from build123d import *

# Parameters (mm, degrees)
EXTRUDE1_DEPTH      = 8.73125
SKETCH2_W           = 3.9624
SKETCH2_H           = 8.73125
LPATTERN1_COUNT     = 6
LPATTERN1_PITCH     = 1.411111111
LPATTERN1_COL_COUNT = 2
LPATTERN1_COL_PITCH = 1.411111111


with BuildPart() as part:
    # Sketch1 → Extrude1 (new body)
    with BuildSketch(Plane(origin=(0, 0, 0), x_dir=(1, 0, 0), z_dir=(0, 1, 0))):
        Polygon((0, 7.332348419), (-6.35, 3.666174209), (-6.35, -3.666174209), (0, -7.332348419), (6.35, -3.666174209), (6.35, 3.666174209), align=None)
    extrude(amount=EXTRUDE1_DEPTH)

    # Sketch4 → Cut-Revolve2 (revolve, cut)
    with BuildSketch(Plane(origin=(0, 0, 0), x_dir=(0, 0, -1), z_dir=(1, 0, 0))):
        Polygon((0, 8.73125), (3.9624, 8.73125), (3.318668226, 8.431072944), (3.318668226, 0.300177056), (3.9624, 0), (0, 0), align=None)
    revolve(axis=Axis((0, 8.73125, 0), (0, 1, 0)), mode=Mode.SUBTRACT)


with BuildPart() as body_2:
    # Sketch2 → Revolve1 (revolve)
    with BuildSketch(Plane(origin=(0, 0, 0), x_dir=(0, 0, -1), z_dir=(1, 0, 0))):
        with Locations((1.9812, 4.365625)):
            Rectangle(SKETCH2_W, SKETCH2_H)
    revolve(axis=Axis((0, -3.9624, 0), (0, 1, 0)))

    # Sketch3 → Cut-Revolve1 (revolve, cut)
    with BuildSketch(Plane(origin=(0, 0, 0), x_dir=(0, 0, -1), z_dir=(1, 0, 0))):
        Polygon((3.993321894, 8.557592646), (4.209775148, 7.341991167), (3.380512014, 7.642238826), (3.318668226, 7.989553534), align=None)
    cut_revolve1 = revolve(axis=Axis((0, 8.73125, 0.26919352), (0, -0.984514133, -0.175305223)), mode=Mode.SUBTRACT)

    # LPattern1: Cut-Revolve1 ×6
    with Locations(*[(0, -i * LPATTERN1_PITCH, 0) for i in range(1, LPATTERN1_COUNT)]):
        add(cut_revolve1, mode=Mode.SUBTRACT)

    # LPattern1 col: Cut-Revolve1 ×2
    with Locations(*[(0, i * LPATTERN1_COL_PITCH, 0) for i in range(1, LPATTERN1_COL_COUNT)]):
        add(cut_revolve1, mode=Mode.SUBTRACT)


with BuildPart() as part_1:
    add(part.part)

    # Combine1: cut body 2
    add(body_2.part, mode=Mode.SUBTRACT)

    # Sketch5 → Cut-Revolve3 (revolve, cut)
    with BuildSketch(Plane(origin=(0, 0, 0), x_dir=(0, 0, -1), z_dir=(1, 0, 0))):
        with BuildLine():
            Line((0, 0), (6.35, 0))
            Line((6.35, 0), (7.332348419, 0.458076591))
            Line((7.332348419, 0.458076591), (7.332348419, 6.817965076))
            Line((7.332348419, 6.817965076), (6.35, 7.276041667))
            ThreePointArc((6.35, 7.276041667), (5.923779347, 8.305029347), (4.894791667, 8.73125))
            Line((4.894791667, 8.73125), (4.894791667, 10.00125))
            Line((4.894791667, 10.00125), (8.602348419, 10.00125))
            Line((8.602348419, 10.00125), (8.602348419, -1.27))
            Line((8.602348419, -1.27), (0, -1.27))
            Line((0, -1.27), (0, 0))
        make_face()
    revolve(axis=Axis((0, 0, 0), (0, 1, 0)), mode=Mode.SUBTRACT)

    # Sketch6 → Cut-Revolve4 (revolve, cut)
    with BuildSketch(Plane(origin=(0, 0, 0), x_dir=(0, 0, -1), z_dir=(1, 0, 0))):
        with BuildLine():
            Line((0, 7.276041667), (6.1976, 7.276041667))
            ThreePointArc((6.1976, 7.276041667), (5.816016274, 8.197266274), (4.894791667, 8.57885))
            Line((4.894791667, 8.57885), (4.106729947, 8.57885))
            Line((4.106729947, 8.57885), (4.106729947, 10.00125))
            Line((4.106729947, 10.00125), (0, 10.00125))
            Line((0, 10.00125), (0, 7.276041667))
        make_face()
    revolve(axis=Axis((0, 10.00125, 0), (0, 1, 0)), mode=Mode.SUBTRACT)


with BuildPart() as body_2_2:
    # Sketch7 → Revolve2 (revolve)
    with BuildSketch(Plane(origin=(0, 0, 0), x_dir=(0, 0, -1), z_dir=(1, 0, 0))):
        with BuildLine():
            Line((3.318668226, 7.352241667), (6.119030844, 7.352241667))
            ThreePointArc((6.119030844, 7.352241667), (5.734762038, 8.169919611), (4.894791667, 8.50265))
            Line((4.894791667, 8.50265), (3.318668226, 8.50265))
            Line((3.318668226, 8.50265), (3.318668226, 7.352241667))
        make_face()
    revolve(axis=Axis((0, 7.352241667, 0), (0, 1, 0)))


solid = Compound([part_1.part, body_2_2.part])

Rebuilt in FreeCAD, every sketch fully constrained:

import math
import FreeCAD as App
import Part
import Sketcher
Q = App.Units.Quantity

doc = App.newDocument("Part")
params = doc.addObject("Spreadsheet::Sheet", "Params")
for row, (alias, value) in enumerate([
    ("pad1_length", "0.34375 in"),
    ("sketch2_width", "0.34375 in"),
    ("sketch2_height", "0.156 in"),
    ("groove_angle", "360 deg"),
    ("sketch3_width", "0.34375 in"),
    ("sketch3_height", "0.156 in"),
    ("revolution_angle", "360 deg"),
    ("groove2_angle", "360 deg"),
    ("linearpattern_pitch", "1.411111 mm"),
    ("linearpattern2_pitch", "1.411111 mm"),
    ("sketch5_width", "0.05 in"),
    ("sketch5_height", "0.25 in"),
    ("groove3_angle", "360 deg"),
    ("sketch6_width", "0.056 in"),
    ("sketch6_height", "0.244 in"),
    ("groove4_angle", "360 deg"),
    ("revolution2_angle", "360 deg"),
], start=1):
    params.set(f"A{row}", alias)
    params.set(f"B{row}", "=" + value)
    params.setAlias(f"B{row}", alias)

body = doc.addObject("PartDesign::Body", "Body")

# Sketch on XZ plane
sketch1 = doc.addObject("Sketcher::SketchObject", "Sketch")
body.addObject(sketch1)
sketch1.AttachmentSupport = (doc.XZ_Plane, [""])
sketch1.MapMode = "FlatFace"
sketch1.addGeometry(Part.LineSegment(App.Vector(0, -7, 0), App.Vector(-6, -4, 0)), False)
sketch1.addGeometry(Part.LineSegment(App.Vector(-6, -4, 0), App.Vector(-6, 4, 0)), False)
sketch1.addGeometry(Part.LineSegment(App.Vector(-6, 4, 0), App.Vector(0, 7, 0)), False)
sketch1.addGeometry(Part.LineSegment(App.Vector(0, 7, 0), App.Vector(6, 4, 0)), False)
sketch1.addGeometry(Part.LineSegment(App.Vector(6, 4, 0), App.Vector(6, -4, 0)), False)
sketch1.addGeometry(Part.LineSegment(App.Vector(6, -4, 0), App.Vector(0, -7, 0)), False)
sketch1.addConstraint(Sketcher.Constraint("Coincident", 0, 2, 1, 1))
sketch1.addConstraint(Sketcher.Constraint("Coincident", 1, 2, 2, 1))
sketch1.addConstraint(Sketcher.Constraint("Coincident", 2, 2, 3, 1))
sketch1.addConstraint(Sketcher.Constraint("Coincident", 3, 2, 4, 1))
sketch1.addConstraint(Sketcher.Constraint("Coincident", 4, 2, 5, 1))
sketch1.addConstraint(Sketcher.Constraint("Coincident", 5, 2, 0, 1))
sketch1.addConstraint(Sketcher.Constraint("Vertical", 1))
sketch1.addConstraint(Sketcher.Constraint("Vertical", 4))
sketch1.addConstraint(Sketcher.Constraint("Symmetric", 0, 2, 3, 2, -1, 1))
sketch1.addConstraint(Sketcher.Constraint("Symmetric", 2, 2, 5, 2, -1, 1))
sketch1.addConstraint(Sketcher.Constraint("PointOnObject", 2, 2, -2))
sketch1.addConstraint(Sketcher.Constraint("Parallel", 2, 5))
sketch1.addConstraint(Sketcher.Constraint("Horizontal", 1, 2, 3, 2))
sketch1.addConstraint(Sketcher.Constraint("Angle", 0, Q("150 deg")))
sketch1.addConstraint(Sketcher.Constraint("DistanceX", 1, 2, 3, 2, Q("0.5 in")))
sketch1.addConstraint(Sketcher.Constraint("DistanceY", 1, 1, 1, 2, 7.332348))
pad1 = doc.addObject("PartDesign::Pad", "Pad")
body.addObject(pad1)
pad1.Profile = sketch1
pad1.setExpression("Length", "Params.pad1_length")
pad1.Reversed = True

# Sketch on YZ plane
sketch2 = doc.addObject("Sketcher::SketchObject", "Sketch001")
body.addObject(sketch2)
sketch2.AttachmentSupport = (doc.YZ_Plane, [""])
sketch2.MapMode = "FlatFace"
sketch2.addGeometry(Part.LineSegment(App.Vector(8.7, -4, 0), App.Vector(8.7, 0, 0)), False)
sketch2.addGeometry(Part.LineSegment(App.Vector(8.7, 0, 0), App.Vector(0, 0, 0)), False)
sketch2.addGeometry(Part.LineSegment(App.Vector(0, 0, 0), App.Vector(0, -4, 0)), False)
sketch2.addGeometry(Part.LineSegment(App.Vector(0, -4, 0), App.Vector(0.3, -3.3, 0)), False)
sketch2.addGeometry(Part.LineSegment(App.Vector(0.3, -3.3, 0), App.Vector(8.4, -3.3, 0)), False)
sketch2.addGeometry(Part.LineSegment(App.Vector(8.4, -3.3, 0), App.Vector(8.7, -4, 0)), False)
sketch2.addConstraint(Sketcher.Constraint("Coincident", 0, 2, 1, 1))
sketch2.addConstraint(Sketcher.Constraint("Coincident", 1, 2, 2, 1))
sketch2.addConstraint(Sketcher.Constraint("Coincident", 2, 2, 3, 1))
sketch2.addConstraint(Sketcher.Constraint("Coincident", 3, 2, 4, 1))
sketch2.addConstraint(Sketcher.Constraint("Coincident", 4, 2, 5, 1))
sketch2.addConstraint(Sketcher.Constraint("Coincident", 5, 2, 0, 1))
sketch2.addConstraint(Sketcher.Constraint("Vertical", 0))
sketch2.addConstraint(Sketcher.Constraint("Horizontal", 1))
sketch2.addConstraint(Sketcher.Constraint("Vertical", 2))
sketch2.addConstraint(Sketcher.Constraint("Horizontal", 4))
sketch2.addConstraint(Sketcher.Constraint("Coincident", 1, 2, -1, 1))
sketch2.addConstraint(Sketcher.Constraint("Horizontal", 2, 2, 5, 2))
sketch2.addConstraint(Sketcher.Constraint("Equal", 3, 5))
sketch2.addConstraint(Sketcher.Constraint("Angle", 3, Q("65 deg")))
sketch2.addConstraint(Sketcher.Constraint("DistanceX", 1, 2, 1, 1, Q("0.34375 in")))
sketch2.addConstraint(Sketcher.Constraint("DistanceY", 0, 1, 0, 2, Q("0.156 in")))
sketch2.addConstraint(Sketcher.Constraint("Distance", 3, 0.710279))
sketch2.setExpression("Constraints[14]", "Params.sketch2_width")
sketch2.setExpression("Constraints[15]", "Params.sketch2_height")
groove = doc.addObject("PartDesign::Groove", "Groove")
body.addObject(groove)
groove.Profile = sketch2
groove.ReferenceAxis = (sketch2, ["H_Axis"])
groove.setExpression("Angle", "Params.groove_angle")
body2 = doc.addObject("PartDesign::Body", "Body001")

# Sketch on YZ plane
sketch3 = doc.addObject("Sketcher::SketchObject", "Sketch002")
body2.addObject(sketch3)
sketch3.AttachmentSupport = (doc.getObject("YZ_Plane001"), [""])
sketch3.MapMode = "FlatFace"
sketch3.addGeometry(Part.LineSegment(App.Vector(8.7, 0, 0), App.Vector(0, 0, 0)), False)
sketch3.addGeometry(Part.LineSegment(App.Vector(0, 0, 0), App.Vector(0, -4, 0)), False)
sketch3.addGeometry(Part.LineSegment(App.Vector(0, -4, 0), App.Vector(8.7, -4, 0)), False)
sketch3.addGeometry(Part.LineSegment(App.Vector(8.7, -4, 0), App.Vector(8.7, 0, 0)), False)
sketch3.addConstraint(Sketcher.Constraint("Coincident", 0, 2, 1, 1))
sketch3.addConstraint(Sketcher.Constraint("Coincident", 1, 2, 2, 1))
sketch3.addConstraint(Sketcher.Constraint("Coincident", 2, 2, 3, 1))
sketch3.addConstraint(Sketcher.Constraint("Coincident", 3, 2, 0, 1))
sketch3.addConstraint(Sketcher.Constraint("Horizontal", 0))
sketch3.addConstraint(Sketcher.Constraint("Vertical", 1))
sketch3.addConstraint(Sketcher.Constraint("Horizontal", 2))
sketch3.addConstraint(Sketcher.Constraint("Vertical", 3))
sketch3.addConstraint(Sketcher.Constraint("Coincident", 0, 2, -1, 1))
sketch3.addConstraint(Sketcher.Constraint("DistanceX", 0, 2, 0, 1, Q("0.34375 in")))
sketch3.addConstraint(Sketcher.Constraint("DistanceY", 1, 2, 1, 1, Q("0.156 in")))
sketch3.setExpression("Constraints[9]", "Params.sketch3_width")
sketch3.setExpression("Constraints[10]", "Params.sketch3_height")
revolution = doc.addObject("PartDesign::Revolution", "Revolution")
body2.addObject(revolution)
revolution.Profile = sketch3
revolution.ReferenceAxis = (sketch3, ["H_Axis"])
revolution.setExpression("Angle", "Params.revolution_angle")

# Sketch on YZ plane
sketch4 = doc.addObject("Sketcher::SketchObject", "Sketch003")
body2.addObject(sketch4)
sketch4.AttachmentSupport = (doc.getObject("YZ_Plane001"), [""])
sketch4.MapMode = "FlatFace"
sketch4.addGeometry(Part.LineSegment(App.Vector(7.34, -4.21, 0), App.Vector(8.56, -3.99, 0)), False)
sketch4.addGeometry(Part.LineSegment(App.Vector(8.56, -3.99, 0), App.Vector(7.99, -3.32, 0)), False)
sketch4.addGeometry(Part.LineSegment(App.Vector(7.99, -3.32, 0), App.Vector(7.64, -3.38, 0)), False)
sketch4.addGeometry(Part.LineSegment(App.Vector(7.64, -3.38, 0), App.Vector(7.34, -4.21, 0)), False)
sketch4.addGeometry(Part.LineSegment(App.Vector(7.83, 0.11, 0), App.Vector(6.61, -0.11, 0)), True)  # axis
sketch4.addConstraint(Sketcher.Constraint("Coincident", 0, 2, 1, 1))
sketch4.addConstraint(Sketcher.Constraint("Coincident", 1, 2, 2, 1))
sketch4.addConstraint(Sketcher.Constraint("Coincident", 2, 2, 3, 1))
sketch4.addConstraint(Sketcher.Constraint("Coincident", 3, 2, 0, 1))
sketch4.addConstraint(Sketcher.Constraint("Parallel", 0, 2))
sketch4.addConstraint(Sketcher.Constraint("Parallel", 2, 4))
sketch4.addConstraint(Sketcher.Constraint("Equal", 1, 3))
sketch4.addConstraint(Sketcher.Constraint("Equal", 0, 4))
sketch4.addConstraint(Sketcher.Constraint("DistanceY", 3, 2, 4, 1, Q("0.1700001 in")))
sketch4.addConstraint(Sketcher.Constraint("DistanceX", 3, 2, 0, 2, 1.215601))
sketch4.addConstraint(Sketcher.Constraint("DistanceY", 0, 2, -1, 1, 3.993322))
sketch4.addConstraint(Sketcher.Constraint("DistanceY", 1, 2, -1, 1, 3.318668))
sketch4.addConstraint(Sketcher.Constraint("DistanceX", -1, 1, 2, 2, 7.642239))
sketch4.addConstraint(Sketcher.Constraint("DistanceX", -1, 1, 3, 2, 7.341991))
sketch4.addConstraint(Sketcher.Constraint("DistanceX", -1, 1, 4, 1, 7.82726))
sketch4.addConstraint(Sketcher.Constraint("DistanceX", 1, 2, 0, 2, 0.568039))
groove2 = doc.addObject("PartDesign::Groove", "Groove001")
body2.addObject(groove2)
groove2.Profile = sketch4
groove2.ReferenceAxis = (sketch4, ["Axis0"])
groove2.setExpression("Angle", "Params.groove2_angle")
doc.recompute()

linearpattern = doc.addObject("PartDesign::LinearPattern", "LinearPattern")
body2.addObject(linearpattern)
linearpattern.Originals = [groove2]
linearpattern.Direction = (doc.getObject("Y_Axis001"), [""])
linearpattern.Mode = "offset"
linearpattern.setExpression("Offset", "Params.linearpattern_pitch")
linearpattern.Occurrences = 6
linearpattern.Reversed = True
body2.Tip = linearpattern
doc.recompute()

linearpattern2 = doc.addObject("PartDesign::LinearPattern", "LinearPattern001")
body2.addObject(linearpattern2)
linearpattern2.Originals = [groove2]
linearpattern2.Direction = (doc.getObject("Y_Axis001"), [""])
linearpattern2.Mode = "offset"
linearpattern2.setExpression("Offset", "Params.linearpattern2_pitch")
linearpattern2.Occurrences = 2
body2.Tip = linearpattern2
doc.recompute()

boolean = doc.addObject("PartDesign::Boolean", "Boolean")
body.addObject(boolean)
boolean.Type = "Cut"
boolean.addObjects([body2])

# Sketch on YZ plane
sketch5 = doc.addObject("Sketcher::SketchObject", "Sketch004")
body.addObject(sketch5)
sketch5.AttachmentSupport = (doc.YZ_Plane, [""])
sketch5.MapMode = "FlatFace"
sketch5.addGeometry(Part.LineSegment(App.Vector(0, -6.3, 0), App.Vector(0, 0, 0)), False)
sketch5.addGeometry(Part.LineSegment(App.Vector(0, 0, 0), App.Vector(-1.3, 0, 0)), False)
sketch5.addGeometry(Part.LineSegment(App.Vector(-1.3, 0, 0), App.Vector(-1.3, -8.6, 0)), False)
sketch5.addGeometry(Part.LineSegment(App.Vector(-1.3, -8.6, 0), App.Vector(10, -8.6, 0)), False)
sketch5.addGeometry(Part.LineSegment(App.Vector(10, -8.6, 0), App.Vector(10, -4.9, 0)), False)
sketch5.addGeometry(Part.LineSegment(App.Vector(10, -4.9, 0), App.Vector(8.7, -4.9, 0)), False)
sketch5.addGeometry(Part.ArcOfCircle(Part.Circle(App.Vector(7.3, -4.9, 0), App.Vector(0, 0, 1), 1.5), math.radians(-90), math.radians(0)), False)
sketch5.addGeometry(Part.LineSegment(App.Vector(7.3, -6.3, 0), App.Vector(6.8, -7.3, 0)), False)
sketch5.addGeometry(Part.LineSegment(App.Vector(6.8, -7.3, 0), App.Vector(0.5, -7.3, 0)), False)
sketch5.addGeometry(Part.LineSegment(App.Vector(0.5, -7.3, 0), App.Vector(0, -6.3, 0)), False)
sketch5.addConstraint(Sketcher.Constraint("Coincident", 0, 2, 1, 1))
sketch5.addConstraint(Sketcher.Constraint("Coincident", 1, 2, 2, 1))
sketch5.addConstraint(Sketcher.Constraint("Coincident", 2, 2, 3, 1))
sketch5.addConstraint(Sketcher.Constraint("Coincident", 3, 2, 4, 1))
sketch5.addConstraint(Sketcher.Constraint("Coincident", 4, 2, 5, 1))
sketch5.addConstraint(Sketcher.Constraint("Coincident", 5, 2, 6, 2))
sketch5.addConstraint(Sketcher.Constraint("Coincident", 6, 1, 7, 1))
sketch5.addConstraint(Sketcher.Constraint("Coincident", 7, 2, 8, 1))
sketch5.addConstraint(Sketcher.Constraint("Coincident", 8, 2, 9, 1))
sketch5.addConstraint(Sketcher.Constraint("Coincident", 9, 2, 0, 1))
sketch5.addConstraint(Sketcher.Constraint("Vertical", 0))
sketch5.addConstraint(Sketcher.Constraint("Horizontal", 1))
sketch5.addConstraint(Sketcher.Constraint("Vertical", 2))
sketch5.addConstraint(Sketcher.Constraint("Horizontal", 3))
sketch5.addConstraint(Sketcher.Constraint("Vertical", 4))
sketch5.addConstraint(Sketcher.Constraint("Horizontal", 5))
sketch5.addConstraint(Sketcher.Constraint("Horizontal", 8))
sketch5.addConstraint(Sketcher.Constraint("Coincident", 0, 2, -1, 1))
sketch5.addConstraint(Sketcher.Constraint("Horizontal", 6, 3, 4, 2))
sketch5.addConstraint(Sketcher.Constraint("Horizontal", 6, 1, 9, 2))
sketch5.addConstraint(Sketcher.Constraint("Equal", 1, 5))
sketch5.addConstraint(Sketcher.Constraint("Equal", 7, 9))
sketch5.addConstraint(Sketcher.Constraint("Angle", 7, Q("-115 deg")))
sketch5.addConstraint(Sketcher.Constraint("DistanceX", 1, 2, 1, 1, Q("0.05 in")))
sketch5.addConstraint(Sketcher.Constraint("DistanceY", 0, 1, 0, 2, Q("0.25 in")))
sketch5.addConstraint(Sketcher.Constraint("DistanceY", 3, 2, 7, 2, Q("0.05 in")))
sketch5.addConstraint(Sketcher.Constraint("DistanceX", -1, 1, 5, 2, Q("0.34375 in")))
sketch5.addConstraint(Sketcher.Constraint("Radius", 6, 1.455208))
sketch5.addConstraint(Sketcher.Constraint("Distance", 7, 1.083902))
sketch5.addConstraint(Sketcher.Constraint("DistanceX", 8, 2, 8, 1, 6.359888))
sketch5.setExpression("Constraints[23]", "Params.sketch5_width")
sketch5.setExpression("Constraints[24]", "Params.sketch5_height")
groove3 = doc.addObject("PartDesign::Groove", "Groove002")
body.addObject(groove3)
groove3.Profile = sketch5
groove3.ReferenceAxis = (sketch5, ["H_Axis"])
groove3.setExpression("Angle", "Params.groove3_angle")

# Sketch on YZ plane
sketch6 = doc.addObject("Sketcher::SketchObject", "Sketch005")
body.addObject(sketch6)
sketch6.AttachmentSupport = (doc.YZ_Plane, [""])
sketch6.MapMode = "FlatFace"
sketch6.addGeometry(Part.LineSegment(App.Vector(7.3, 0, 0), App.Vector(7.3, -6.2, 0)), False)
sketch6.addGeometry(Part.ArcOfCircle(Part.Circle(App.Vector(7.3, -4.9, 0), App.Vector(0, 0, 1), 1.3), math.radians(-90), math.radians(0)), False)
sketch6.addGeometry(Part.LineSegment(App.Vector(8.6, -4.9, 0), App.Vector(8.6, -4.1, 0)), False)
sketch6.addGeometry(Part.LineSegment(App.Vector(8.6, -4.1, 0), App.Vector(10, -4.1, 0)), False)
sketch6.addGeometry(Part.LineSegment(App.Vector(10, -4.1, 0), App.Vector(10, 0, 0)), False)
sketch6.addGeometry(Part.LineSegment(App.Vector(10, 0, 0), App.Vector(7.3, 0, 0)), False)
sketch6.addConstraint(Sketcher.Constraint("Coincident", 0, 2, 1, 1))
sketch6.addConstraint(Sketcher.Constraint("Tangent", 1, 2, 2, 1))
sketch6.addConstraint(Sketcher.Constraint("Coincident", 2, 2, 3, 1))
sketch6.addConstraint(Sketcher.Constraint("Coincident", 3, 2, 4, 1))
sketch6.addConstraint(Sketcher.Constraint("Coincident", 4, 2, 5, 1))
sketch6.addConstraint(Sketcher.Constraint("Coincident", 5, 2, 0, 1))
sketch6.addConstraint(Sketcher.Constraint("Vertical", 0))
sketch6.addConstraint(Sketcher.Constraint("Vertical", 2))
sketch6.addConstraint(Sketcher.Constraint("Horizontal", 3))
sketch6.addConstraint(Sketcher.Constraint("Vertical", 4))
sketch6.addConstraint(Sketcher.Constraint("Horizontal", 5))
sketch6.addConstraint(Sketcher.Constraint("PointOnObject", 4, 2, -1))
sketch6.addConstraint(Sketcher.Constraint("Vertical", 1, 3, 0, 2))
sketch6.addConstraint(Sketcher.Constraint("DistanceX", 3, 1, 3, 2, Q("0.056 in")))
sketch6.addConstraint(Sketcher.Constraint("DistanceY", 0, 2, 0, 1, Q("0.244 in")))
sketch6.addConstraint(Sketcher.Constraint("Radius", 1, 1.302808))
sketch6.addConstraint(Sketcher.Constraint("DistanceY", 2, 1, 2, 2, 0.788062))
sketch6.addConstraint(Sketcher.Constraint("DistanceX", -1, 1, 1, 3, 7.276042))
sketch6.setExpression("Constraints[13]", "Params.sketch6_width")
sketch6.setExpression("Constraints[14]", "Params.sketch6_height")
groove4 = doc.addObject("PartDesign::Groove", "Groove003")
body.addObject(groove4)
groove4.Profile = sketch6
groove4.ReferenceAxis = (sketch6, ["H_Axis"])
groove4.setExpression("Angle", "Params.groove4_angle")
body3 = doc.addObject("PartDesign::Body", "Body002")

# Sketch on YZ plane
sketch7 = doc.addObject("Sketcher::SketchObject", "Sketch006")
body3.addObject(sketch7)
sketch7.AttachmentSupport = (doc.getObject("YZ_Plane002"), [""])
sketch7.MapMode = "FlatFace"
sketch7.addGeometry(Part.LineSegment(App.Vector(7.4, -3.3, 0), App.Vector(7.4, -6.1, 0)), False)
sketch7.addGeometry(Part.ArcOfCircle(Part.Circle(App.Vector(7.3, -4.9, 0), App.Vector(0, 0, 1), 1.2), math.radians(-86), math.radians(0)), False)
sketch7.addGeometry(Part.LineSegment(App.Vector(8.5, -4.9, 0), App.Vector(8.5, -3.3, 0)), False)
sketch7.addGeometry(Part.LineSegment(App.Vector(8.5, -3.3, 0), App.Vector(7.4, -3.3, 0)), False)
sketch7.addConstraint(Sketcher.Constraint("Coincident", 0, 2, 1, 1))
sketch7.addConstraint(Sketcher.Constraint("Tangent", 1, 2, 2, 1))
sketch7.addConstraint(Sketcher.Constraint("Coincident", 2, 2, 3, 1))
sketch7.addConstraint(Sketcher.Constraint("Coincident", 3, 2, 0, 1))
sketch7.addConstraint(Sketcher.Constraint("Vertical", 0))
sketch7.addConstraint(Sketcher.Constraint("Vertical", 2))
sketch7.addConstraint(Sketcher.Constraint("Horizontal", 3))
sketch7.addConstraint(Sketcher.Constraint("Radius", 1, 1.226608))
sketch7.addConstraint(Sketcher.Constraint("DistanceX", 1, 3, 0, 2, Q("0.003 in")))
sketch7.addConstraint(Sketcher.Constraint("DistanceY", 0, 2, 0, 1, 2.800363))
sketch7.addConstraint(Sketcher.Constraint("DistanceX", -1, 1, 1, 3, 7.276042))
sketch7.addConstraint(Sketcher.Constraint("DistanceY", 1, 3, -1, 1, 4.894792))
revolution2 = doc.addObject("PartDesign::Revolution", "Revolution001")
body3.addObject(revolution2)
revolution2.Profile = sketch7
revolution2.ReferenceAxis = (sketch7, ["H_Axis"])
revolution2.setExpression("Angle", "Params.revolution2_angle")

doc.recompute()
